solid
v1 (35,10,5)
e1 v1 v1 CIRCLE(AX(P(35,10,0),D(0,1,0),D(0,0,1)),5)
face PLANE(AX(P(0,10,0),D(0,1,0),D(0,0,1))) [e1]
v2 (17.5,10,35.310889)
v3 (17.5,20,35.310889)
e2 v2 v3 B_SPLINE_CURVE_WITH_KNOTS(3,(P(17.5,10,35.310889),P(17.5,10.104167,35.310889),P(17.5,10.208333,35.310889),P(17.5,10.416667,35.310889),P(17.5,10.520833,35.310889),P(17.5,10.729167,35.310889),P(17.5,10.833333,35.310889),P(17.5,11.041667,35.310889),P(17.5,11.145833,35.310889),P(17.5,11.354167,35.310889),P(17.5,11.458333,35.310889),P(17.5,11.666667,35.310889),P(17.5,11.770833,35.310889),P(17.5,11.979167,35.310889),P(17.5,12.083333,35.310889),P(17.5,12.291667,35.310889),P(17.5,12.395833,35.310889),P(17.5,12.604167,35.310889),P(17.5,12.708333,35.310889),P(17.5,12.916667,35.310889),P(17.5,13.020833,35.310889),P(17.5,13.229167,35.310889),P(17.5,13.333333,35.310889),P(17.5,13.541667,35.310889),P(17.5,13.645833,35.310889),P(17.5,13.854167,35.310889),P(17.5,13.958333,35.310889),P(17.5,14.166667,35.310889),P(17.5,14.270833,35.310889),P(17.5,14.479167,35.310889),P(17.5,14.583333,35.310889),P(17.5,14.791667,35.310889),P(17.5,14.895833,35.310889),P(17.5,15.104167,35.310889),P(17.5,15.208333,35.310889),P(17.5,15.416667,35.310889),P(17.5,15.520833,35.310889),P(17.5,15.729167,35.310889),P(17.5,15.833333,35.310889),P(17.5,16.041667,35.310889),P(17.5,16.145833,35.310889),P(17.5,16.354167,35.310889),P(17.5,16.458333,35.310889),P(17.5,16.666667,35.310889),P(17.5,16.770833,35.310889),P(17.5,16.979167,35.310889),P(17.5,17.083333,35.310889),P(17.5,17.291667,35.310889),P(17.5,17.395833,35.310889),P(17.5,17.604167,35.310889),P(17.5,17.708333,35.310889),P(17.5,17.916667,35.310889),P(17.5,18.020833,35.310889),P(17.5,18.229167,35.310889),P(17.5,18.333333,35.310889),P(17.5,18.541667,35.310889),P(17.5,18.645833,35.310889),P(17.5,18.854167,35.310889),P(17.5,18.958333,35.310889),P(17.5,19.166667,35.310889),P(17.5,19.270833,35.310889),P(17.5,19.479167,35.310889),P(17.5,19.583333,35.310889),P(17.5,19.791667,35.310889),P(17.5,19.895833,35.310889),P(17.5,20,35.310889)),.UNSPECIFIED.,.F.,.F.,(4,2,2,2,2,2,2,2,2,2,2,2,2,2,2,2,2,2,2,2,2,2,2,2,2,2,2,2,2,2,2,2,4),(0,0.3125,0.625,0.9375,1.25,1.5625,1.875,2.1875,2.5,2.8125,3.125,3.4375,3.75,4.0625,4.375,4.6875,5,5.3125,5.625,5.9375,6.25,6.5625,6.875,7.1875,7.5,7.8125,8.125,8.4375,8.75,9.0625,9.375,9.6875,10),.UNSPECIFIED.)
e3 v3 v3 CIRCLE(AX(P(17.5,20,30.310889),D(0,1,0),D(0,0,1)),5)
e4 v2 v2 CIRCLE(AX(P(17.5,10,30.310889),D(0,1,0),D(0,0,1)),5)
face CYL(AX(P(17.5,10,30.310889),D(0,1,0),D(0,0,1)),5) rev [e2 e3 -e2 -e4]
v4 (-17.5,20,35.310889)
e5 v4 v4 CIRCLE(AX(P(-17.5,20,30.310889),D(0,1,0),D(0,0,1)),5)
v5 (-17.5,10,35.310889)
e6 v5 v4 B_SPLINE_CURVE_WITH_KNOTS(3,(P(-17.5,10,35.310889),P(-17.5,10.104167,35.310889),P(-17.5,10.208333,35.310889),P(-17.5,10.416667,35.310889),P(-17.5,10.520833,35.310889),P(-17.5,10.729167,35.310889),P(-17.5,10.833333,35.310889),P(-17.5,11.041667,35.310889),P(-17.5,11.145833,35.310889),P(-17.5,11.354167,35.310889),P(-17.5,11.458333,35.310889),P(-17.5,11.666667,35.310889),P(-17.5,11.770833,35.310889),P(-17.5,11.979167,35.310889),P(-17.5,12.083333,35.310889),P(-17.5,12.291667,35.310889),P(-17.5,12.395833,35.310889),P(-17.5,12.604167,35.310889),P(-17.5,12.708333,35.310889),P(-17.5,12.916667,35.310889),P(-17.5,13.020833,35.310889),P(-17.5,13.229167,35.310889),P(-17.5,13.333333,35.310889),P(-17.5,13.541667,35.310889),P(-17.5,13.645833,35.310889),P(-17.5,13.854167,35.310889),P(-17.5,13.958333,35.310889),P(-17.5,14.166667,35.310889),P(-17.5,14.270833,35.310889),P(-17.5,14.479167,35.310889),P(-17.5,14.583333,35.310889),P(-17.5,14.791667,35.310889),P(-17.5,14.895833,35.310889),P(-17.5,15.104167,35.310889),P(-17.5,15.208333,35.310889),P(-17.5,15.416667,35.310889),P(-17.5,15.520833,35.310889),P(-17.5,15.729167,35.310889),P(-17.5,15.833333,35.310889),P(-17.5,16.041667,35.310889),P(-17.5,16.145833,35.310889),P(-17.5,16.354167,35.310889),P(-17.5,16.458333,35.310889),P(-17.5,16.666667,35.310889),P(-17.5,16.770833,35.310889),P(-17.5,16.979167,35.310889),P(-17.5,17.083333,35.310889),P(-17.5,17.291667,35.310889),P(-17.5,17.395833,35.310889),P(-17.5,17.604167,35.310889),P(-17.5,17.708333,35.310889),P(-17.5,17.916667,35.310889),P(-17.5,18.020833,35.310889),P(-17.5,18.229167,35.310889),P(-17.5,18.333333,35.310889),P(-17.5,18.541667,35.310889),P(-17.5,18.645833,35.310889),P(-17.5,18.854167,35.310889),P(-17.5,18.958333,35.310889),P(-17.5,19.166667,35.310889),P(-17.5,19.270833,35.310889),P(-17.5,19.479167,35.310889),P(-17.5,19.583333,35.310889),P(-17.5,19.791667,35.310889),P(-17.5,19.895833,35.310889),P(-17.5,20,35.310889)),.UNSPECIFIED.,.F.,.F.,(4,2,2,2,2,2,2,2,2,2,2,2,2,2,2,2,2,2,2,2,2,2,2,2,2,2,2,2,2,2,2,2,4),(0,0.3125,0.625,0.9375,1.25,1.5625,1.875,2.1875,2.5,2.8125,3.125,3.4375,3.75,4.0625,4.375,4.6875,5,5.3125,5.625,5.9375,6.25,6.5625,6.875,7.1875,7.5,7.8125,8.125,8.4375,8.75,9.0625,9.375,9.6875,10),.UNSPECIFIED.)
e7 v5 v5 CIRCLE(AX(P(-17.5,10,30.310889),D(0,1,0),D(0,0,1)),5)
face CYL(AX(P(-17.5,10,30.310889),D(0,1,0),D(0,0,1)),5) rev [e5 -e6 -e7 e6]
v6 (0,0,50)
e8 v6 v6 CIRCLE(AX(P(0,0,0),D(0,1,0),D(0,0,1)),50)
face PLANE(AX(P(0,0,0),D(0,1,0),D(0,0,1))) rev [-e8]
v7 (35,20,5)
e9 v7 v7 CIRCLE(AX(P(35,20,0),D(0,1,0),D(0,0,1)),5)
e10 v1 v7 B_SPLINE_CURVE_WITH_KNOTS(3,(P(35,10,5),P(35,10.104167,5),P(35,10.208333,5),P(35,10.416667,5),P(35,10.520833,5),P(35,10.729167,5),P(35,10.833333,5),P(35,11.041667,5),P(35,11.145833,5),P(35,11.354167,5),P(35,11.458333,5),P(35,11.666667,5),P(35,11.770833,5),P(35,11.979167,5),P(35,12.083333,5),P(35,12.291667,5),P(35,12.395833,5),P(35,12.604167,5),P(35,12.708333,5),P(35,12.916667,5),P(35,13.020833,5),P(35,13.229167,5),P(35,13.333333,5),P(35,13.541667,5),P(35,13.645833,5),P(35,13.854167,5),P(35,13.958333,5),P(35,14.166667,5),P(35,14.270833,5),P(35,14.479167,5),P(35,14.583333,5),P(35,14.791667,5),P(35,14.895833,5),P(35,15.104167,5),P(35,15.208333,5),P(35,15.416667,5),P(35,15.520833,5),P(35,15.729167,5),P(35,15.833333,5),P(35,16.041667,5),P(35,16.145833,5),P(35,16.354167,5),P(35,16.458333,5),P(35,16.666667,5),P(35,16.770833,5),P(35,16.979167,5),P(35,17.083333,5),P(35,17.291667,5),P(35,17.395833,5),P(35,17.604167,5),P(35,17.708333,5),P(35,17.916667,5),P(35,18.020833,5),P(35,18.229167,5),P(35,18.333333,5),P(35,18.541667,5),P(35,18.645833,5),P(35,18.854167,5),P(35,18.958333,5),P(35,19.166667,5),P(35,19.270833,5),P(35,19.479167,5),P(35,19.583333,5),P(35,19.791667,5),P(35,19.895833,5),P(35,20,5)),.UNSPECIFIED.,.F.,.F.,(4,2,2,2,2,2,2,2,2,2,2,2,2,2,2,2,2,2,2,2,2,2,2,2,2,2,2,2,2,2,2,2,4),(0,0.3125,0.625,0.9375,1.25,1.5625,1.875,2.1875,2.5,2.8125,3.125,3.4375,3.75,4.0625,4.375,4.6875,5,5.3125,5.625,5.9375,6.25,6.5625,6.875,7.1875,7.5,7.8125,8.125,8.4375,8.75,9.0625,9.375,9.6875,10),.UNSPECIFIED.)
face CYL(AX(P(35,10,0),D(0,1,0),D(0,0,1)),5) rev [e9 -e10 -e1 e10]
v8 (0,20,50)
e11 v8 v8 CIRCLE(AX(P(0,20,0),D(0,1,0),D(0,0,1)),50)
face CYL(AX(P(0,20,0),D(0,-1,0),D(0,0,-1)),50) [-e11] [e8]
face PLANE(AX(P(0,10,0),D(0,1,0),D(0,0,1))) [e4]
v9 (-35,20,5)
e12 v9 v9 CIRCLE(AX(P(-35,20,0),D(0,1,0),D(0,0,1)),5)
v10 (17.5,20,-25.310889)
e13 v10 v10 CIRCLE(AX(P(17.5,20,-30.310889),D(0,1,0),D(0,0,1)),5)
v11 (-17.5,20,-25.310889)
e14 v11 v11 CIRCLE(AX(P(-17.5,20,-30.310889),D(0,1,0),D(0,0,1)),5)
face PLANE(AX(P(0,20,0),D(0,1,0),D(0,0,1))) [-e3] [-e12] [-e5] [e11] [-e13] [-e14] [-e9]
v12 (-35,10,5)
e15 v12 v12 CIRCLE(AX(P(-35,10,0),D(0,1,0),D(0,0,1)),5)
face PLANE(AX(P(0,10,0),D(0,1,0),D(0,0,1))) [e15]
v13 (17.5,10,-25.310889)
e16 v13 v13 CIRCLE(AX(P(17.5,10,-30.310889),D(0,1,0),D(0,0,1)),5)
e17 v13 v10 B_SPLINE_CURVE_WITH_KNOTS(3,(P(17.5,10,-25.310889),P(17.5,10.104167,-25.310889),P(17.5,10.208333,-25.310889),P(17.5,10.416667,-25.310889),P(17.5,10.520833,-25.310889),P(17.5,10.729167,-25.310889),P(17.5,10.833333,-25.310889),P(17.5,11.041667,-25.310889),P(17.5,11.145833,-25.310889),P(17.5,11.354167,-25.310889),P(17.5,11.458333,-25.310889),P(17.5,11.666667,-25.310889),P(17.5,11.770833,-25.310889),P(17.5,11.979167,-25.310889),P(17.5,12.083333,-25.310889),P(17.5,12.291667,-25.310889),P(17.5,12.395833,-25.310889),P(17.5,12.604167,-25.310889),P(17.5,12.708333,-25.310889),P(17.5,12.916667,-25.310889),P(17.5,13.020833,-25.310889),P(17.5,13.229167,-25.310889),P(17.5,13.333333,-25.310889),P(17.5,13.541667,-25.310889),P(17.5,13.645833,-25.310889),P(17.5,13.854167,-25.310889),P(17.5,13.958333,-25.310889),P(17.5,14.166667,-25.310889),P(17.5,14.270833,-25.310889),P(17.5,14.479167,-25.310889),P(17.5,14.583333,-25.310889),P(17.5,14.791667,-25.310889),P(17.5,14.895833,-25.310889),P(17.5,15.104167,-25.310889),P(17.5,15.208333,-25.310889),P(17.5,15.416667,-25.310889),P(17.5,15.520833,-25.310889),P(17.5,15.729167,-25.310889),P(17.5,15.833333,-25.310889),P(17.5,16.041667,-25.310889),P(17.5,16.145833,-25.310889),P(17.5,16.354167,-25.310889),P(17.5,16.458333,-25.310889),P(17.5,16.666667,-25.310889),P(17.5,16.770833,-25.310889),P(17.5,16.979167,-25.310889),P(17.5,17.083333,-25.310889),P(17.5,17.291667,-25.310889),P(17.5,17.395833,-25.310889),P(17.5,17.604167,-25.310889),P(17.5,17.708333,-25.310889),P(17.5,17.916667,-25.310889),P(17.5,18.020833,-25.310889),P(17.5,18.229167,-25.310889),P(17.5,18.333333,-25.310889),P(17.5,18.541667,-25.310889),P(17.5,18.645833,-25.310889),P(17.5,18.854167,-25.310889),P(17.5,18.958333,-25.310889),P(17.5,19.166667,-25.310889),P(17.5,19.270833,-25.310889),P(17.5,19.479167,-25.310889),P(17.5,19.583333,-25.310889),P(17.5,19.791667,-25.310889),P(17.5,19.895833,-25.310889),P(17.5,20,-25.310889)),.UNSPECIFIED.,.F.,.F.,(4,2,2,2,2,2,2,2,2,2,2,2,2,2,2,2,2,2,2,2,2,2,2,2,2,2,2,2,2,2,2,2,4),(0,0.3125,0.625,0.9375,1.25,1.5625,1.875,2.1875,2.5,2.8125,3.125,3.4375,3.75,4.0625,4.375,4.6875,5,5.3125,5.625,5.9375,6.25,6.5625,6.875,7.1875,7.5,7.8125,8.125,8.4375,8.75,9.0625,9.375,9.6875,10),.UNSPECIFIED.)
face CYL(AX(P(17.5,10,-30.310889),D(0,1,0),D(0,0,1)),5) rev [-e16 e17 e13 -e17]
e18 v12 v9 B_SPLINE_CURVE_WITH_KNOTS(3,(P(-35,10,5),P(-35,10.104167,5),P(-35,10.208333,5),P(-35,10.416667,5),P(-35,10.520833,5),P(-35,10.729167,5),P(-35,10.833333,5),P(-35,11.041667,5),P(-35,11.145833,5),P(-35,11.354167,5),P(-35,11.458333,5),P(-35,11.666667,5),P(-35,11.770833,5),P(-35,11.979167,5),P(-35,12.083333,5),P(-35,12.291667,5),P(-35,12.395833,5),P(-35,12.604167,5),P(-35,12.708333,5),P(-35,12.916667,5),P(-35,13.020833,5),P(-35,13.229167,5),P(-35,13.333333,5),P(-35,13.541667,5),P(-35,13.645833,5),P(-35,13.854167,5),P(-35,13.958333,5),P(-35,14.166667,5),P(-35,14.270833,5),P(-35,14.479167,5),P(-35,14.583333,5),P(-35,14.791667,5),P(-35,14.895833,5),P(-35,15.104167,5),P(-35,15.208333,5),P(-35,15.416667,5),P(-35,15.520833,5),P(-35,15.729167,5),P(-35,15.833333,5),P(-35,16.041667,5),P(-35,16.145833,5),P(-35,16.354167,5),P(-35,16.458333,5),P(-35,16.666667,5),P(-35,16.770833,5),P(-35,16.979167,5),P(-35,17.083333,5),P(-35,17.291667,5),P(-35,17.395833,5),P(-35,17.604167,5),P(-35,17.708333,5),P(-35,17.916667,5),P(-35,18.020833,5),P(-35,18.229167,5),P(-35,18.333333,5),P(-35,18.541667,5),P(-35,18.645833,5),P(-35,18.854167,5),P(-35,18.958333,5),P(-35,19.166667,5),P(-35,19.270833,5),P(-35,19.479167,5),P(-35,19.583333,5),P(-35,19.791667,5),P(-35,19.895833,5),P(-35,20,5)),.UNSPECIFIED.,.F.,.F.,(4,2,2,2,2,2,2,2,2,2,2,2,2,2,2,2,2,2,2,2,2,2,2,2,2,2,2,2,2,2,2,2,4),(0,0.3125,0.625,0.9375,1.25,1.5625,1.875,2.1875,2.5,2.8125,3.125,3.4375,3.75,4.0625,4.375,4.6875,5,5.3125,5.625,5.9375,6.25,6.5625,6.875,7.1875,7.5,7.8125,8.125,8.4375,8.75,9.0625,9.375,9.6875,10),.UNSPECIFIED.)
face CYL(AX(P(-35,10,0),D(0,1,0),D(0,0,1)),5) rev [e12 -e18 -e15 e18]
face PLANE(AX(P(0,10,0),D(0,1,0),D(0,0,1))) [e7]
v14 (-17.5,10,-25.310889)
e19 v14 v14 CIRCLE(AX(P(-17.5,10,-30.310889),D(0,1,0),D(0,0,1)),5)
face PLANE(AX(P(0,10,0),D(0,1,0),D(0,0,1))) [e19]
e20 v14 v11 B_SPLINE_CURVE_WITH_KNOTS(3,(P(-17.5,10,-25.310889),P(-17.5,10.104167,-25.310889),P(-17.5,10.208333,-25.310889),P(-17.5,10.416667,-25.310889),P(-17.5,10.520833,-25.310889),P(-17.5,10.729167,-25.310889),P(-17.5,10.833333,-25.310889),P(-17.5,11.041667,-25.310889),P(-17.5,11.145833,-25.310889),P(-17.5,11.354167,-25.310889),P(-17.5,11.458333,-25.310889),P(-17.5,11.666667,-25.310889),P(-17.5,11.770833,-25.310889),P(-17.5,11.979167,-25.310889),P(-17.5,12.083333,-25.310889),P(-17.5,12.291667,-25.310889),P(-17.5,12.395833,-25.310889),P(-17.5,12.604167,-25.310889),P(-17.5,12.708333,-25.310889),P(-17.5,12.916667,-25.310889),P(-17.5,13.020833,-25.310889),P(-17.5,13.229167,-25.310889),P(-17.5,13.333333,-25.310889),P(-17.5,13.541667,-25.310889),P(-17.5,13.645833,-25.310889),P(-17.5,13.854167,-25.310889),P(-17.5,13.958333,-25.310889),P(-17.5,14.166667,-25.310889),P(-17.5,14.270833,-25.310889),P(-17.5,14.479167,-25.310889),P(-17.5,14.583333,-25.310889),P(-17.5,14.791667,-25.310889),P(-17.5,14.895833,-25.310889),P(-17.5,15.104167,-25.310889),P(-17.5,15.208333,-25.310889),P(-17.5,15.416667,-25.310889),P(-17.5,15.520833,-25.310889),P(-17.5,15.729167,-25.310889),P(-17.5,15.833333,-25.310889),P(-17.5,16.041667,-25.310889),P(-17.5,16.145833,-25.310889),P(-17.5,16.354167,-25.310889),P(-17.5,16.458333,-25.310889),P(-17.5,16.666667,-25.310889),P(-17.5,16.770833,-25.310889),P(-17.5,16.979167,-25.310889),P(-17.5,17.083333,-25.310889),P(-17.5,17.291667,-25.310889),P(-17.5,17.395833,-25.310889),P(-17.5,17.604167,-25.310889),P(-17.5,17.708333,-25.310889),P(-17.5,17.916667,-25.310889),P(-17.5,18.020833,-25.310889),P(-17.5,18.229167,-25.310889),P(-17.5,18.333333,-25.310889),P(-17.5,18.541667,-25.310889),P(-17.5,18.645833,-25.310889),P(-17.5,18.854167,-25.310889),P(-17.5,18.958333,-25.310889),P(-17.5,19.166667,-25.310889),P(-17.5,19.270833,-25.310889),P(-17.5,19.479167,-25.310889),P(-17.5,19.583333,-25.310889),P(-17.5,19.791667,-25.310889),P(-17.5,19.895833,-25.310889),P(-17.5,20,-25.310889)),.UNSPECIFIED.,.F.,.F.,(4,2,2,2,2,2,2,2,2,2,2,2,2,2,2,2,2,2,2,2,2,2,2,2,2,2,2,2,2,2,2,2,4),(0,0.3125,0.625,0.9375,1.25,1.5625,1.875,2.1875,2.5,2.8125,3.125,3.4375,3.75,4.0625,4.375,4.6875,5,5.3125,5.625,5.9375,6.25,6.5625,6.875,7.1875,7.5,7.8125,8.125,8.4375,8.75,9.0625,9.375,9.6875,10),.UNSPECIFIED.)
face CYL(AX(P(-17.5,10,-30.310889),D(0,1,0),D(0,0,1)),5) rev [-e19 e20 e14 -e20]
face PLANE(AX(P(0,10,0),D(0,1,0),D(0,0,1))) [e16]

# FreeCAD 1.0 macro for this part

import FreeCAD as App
import Part
import Sketcher
from FreeCAD import Vector
Q = App.Units.Quantity

doc = App.newDocument("Part")
params = doc.addObject("Spreadsheet::Sheet", "Params")
for row, (alias, value) in enumerate([
    ("sketch1_diameter", "100 mm"),
    ("pad1_length", "20 mm"),
    ("sketch2_diameter", "10 mm"),
    ("pocket1_length", "10 mm"),
], start=1):
    params.set(f"A{row}", alias)
    params.set(f"B{row}", "=" + value)
    params.setAlias(f"B{row}", alias)

body = doc.addObject("PartDesign::Body", "Body")

sketch1 = body.newObject("Sketcher::SketchObject", "Sketch")
sketch1.AttachmentSupport = (doc.getObject("XZ_Plane"), [""])
sketch1.MapMode = "FlatFace"
sketch1.addGeometry(Part.Circle(Vector(0, 0, 0), Vector(0, 0, 1), 50), False)
sketch1.addConstraint(Sketcher.Constraint("Coincident", 0, 3, -1, 1))
sketch1.addConstraint(Sketcher.Constraint("Diameter", 0, Q("100 mm")))
sketch1.setExpression("Constraints[1]", "Params.sketch1_diameter")
pad1 = body.newObject("PartDesign::Pad", "Pad")
pad1.Profile = sketch1
pad1.setExpression("Length", "Params.pad1_length")
pad1.Reversed = True

sketch2 = body.newObject("Sketcher::SketchObject", "Sketch001")
sketch2.AttachmentSupport = (doc.getObject("XZ_Plane"), [""])
sketch2.MapMode = "FlatFace"
sketch2.AttachmentOffset = App.Placement(Vector(0, 0, -20), App.Rotation())
sketch2.addGeometry(Part.Circle(Vector(-35, 0, 0), Vector(0, 0, 1), 5), False)
sketch2.addGeometry(Part.Circle(Vector(-18, -30, 0), Vector(0, 0, 1), 5), False)
sketch2.addGeometry(Part.Circle(Vector(18, -30, 0), Vector(0, 0, 1), 5), False)
sketch2.addGeometry(Part.Circle(Vector(35, 0, 0), Vector(0, 0, 1), 5), False)
sketch2.addGeometry(Part.Circle(Vector(18, 30, 0), Vector(0, 0, 1), 5), False)
sketch2.addGeometry(Part.Circle(Vector(-18, 30, 0), Vector(0, 0, 1), 5), False)
sketch2.addConstraint(Sketcher.Constraint("Equal", 0, 1))
sketch2.addConstraint(Sketcher.Constraint("Equal", 1, 2))
sketch2.addConstraint(Sketcher.Constraint("Equal", 2, 3))
sketch2.addConstraint(Sketcher.Constraint("Equal", 3, 4))
sketch2.addConstraint(Sketcher.Constraint("Equal", 4, 5))
sketch2.addConstraint(Sketcher.Constraint("Symmetric", 0, 3, 3, 3, -1, 1))
sketch2.addConstraint(Sketcher.Constraint("Symmetric", 1, 3, 4, 3, -1, 1))
sketch2.addConstraint(Sketcher.Constraint("Symmetric", 2, 3, 5, 3, -1, 1))
sketch2.addConstraint(Sketcher.Constraint("Symmetric", 1, 3, 2, 3, -2))
sketch2.addConstraint(Sketcher.Constraint("PointOnObject", 0, 3, -1))
sketch2.addConstraint(Sketcher.Constraint("Diameter", 0, Q("10 mm")))
sketch2.addConstraint(Sketcher.Constraint("DistanceX", 0, 3, -1, 1, Q("35 mm")))
sketch2.addConstraint(Sketcher.Constraint("DistanceX", 1, 3, 2, 3, Q("35 mm")))
sketch2.addConstraint(Sketcher.Constraint("DistanceY", 1, 3, -1, 1, Q("30.310889 mm")))
sketch2.setExpression("Constraints[10]", "Params.sketch2_diameter")
pocket1 = body.newObject("PartDesign::Pocket", "Pocket")
pocket1.Profile = sketch2
pocket1.setExpression("Length", "Params.pocket1_length")
pocket1.Reversed = True

doc.recompute()
